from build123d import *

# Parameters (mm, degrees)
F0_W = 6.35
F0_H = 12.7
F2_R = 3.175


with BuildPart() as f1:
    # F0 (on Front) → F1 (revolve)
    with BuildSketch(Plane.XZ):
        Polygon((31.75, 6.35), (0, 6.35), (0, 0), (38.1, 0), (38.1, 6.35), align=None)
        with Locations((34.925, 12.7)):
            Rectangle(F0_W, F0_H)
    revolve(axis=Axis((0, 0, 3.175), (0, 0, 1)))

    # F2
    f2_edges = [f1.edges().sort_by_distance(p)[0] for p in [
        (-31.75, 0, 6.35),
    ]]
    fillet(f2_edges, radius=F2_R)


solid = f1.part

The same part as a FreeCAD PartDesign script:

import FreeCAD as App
import Part
import Sketcher
from FreeCAD import Vector
Q = App.Units.Quantity


def edges_at(feature, points):
    """Names of the edges that pass closest to the given points."""
    edges = feature.Shape.Edges
    near = lambda p: min(range(len(edges)), key=lambda i: edges[i].distToShape(Part.Vertex(*p))[0])
    return sorted({f"Edge{near(p) + 1}" for p in points})

doc = App.newDocument("Part")
body = doc.addObject("PartDesign::Body", "Body")

sketch1 = doc.addObject("Sketcher::SketchObject", "Sketch")
body.addObject(sketch1)
sketch1.AttachmentSupport = (doc.XZ_Plane, [""])
sketch1.MapMode = "FlatFace"
sketch1.addGeometry(Part.LineSegment(Vector(0, 6, 0), Vector(0, 0, 0)), False)
sketch1.addGeometry(Part.LineSegment(Vector(0, 0, 0), Vector(38, 0, 0)), False)
sketch1.addGeometry(Part.LineSegment(Vector(38, 0, 0), Vector(38, 19, 0)), False)
sketch1.addGeometry(Part.LineSegment(Vector(38, 19, 0), Vector(32, 19, 0)), False)
sketch1.addGeometry(Part.LineSegment(Vector(32, 19, 0), Vector(32, 6, 0)), False)
sketch1.addGeometry(Part.LineSegment(Vector(32, 6, 0), Vector(0, 6, 0)), False)
sketch1.addConstraint(Sketcher.Constraint("Coincident", 0, 2, 1, 1))
sketch1.addConstraint(Sketcher.Constraint("Coincident", 1, 2, 2, 1))
sketch1.addConstraint(Sketcher.Constraint("Coincident", 2, 2, 3, 1))
sketch1.addConstraint(Sketcher.Constraint("Coincident", 3, 2, 4, 1))
sketch1.addConstraint(Sketcher.Constraint("Coincident", 4, 2, 5, 1))
sketch1.addConstraint(Sketcher.Constraint("Coincident", 5, 2, 0, 1))
sketch1.addConstraint(Sketcher.Constraint("Vertical", 0))
sketch1.addConstraint(Sketcher.Constraint("Horizontal", 1))
sketch1.addConstraint(Sketcher.Constraint("Vertical", 2))
sketch1.addConstraint(Sketcher.Constraint("Horizontal", 3))
sketch1.addConstraint(Sketcher.Constraint("Vertical", 4))
sketch1.addConstraint(Sketcher.Constraint("Horizontal", 5))
sketch1.addConstraint(Sketcher.Constraint("Coincident", 0, 2, -1, 1))
sketch1.addConstraint(Sketcher.Constraint("Equal", 3, 0))
sketch1.addConstraint(Sketcher.Constraint("DistanceX", 1, 1, 1, 2, Q("1.5 in")))
sketch1.addConstraint(Sketcher.Constraint("DistanceY", 4, 2, 4, 1, Q("0.5 in")))
sketch1.addConstraint(Sketcher.Constraint("DistanceX", 3, 2, 3, 1, Q("0.25 in")))
revolution = doc.addObject("PartDesign::Revolution", "Revolution")
body.addObject(revolution)
revolution.Profile = sketch1
revolution.ReferenceAxis = (sketch1, ["V_Axis"])
revolution.Angle = 360
doc.recompute()

fillet = doc.addObject("PartDesign::Fillet", "Fillet")
body.addObject(fillet)
fillet.Base = (revolution, edges_at(revolution, [(-31.75, 0, 6.35)]))
fillet.Radius = Q("0.125 in")

doc.recompute()
